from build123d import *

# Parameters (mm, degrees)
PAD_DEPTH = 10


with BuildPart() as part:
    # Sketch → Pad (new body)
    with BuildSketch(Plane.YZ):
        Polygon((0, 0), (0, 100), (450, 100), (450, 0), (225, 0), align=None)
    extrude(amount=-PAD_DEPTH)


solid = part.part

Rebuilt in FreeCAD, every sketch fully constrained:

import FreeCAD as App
import Part
import Sketcher
Q = App.Units.Quantity

doc = App.newDocument("Part")
params = doc.addObject("Spreadsheet::Sheet", "Params")
for row, (alias, value) in enumerate([
    ("sketch1_width", "450 mm"),
    ("sketch1_height", "100 mm"),
    ("pad1_length", "10 mm"),
], start=1):
    params.set(f"A{row}", alias)
    params.set(f"B{row}", "=" + value)
    params.setAlias(f"B{row}", alias)

body = doc.addObject("PartDesign::Body", "Body")

# Sketch on YZ plane
sketch1 = body.newObject("Sketcher::SketchObject", "Sketch")
sketch1.AttachmentSupport = (doc.getObject("YZ_Plane"), [""])
sketch1.MapMode = "FlatFace"
sketch1.addGeometry([
    Part.LineSegment(App.Vector(0, 100, 0), App.Vector(0, 0, 0)),
    Part.LineSegment(App.Vector(0, 0, 0), App.Vector(450, 0, 0)),
    Part.LineSegment(App.Vector(450, 0, 0), App.Vector(450, 100, 0)),
    Part.LineSegment(App.Vector(450, 100, 0), App.Vector(0, 100, 0)),
], False)
sketch1.addConstraint([
    Sketcher.Constraint("Coincident", 0, 2, 1, 1),
    Sketcher.Constraint("Coincident", 1, 2, 2, 1),
    Sketcher.Constraint("Coincident", 2, 2, 3, 1),
    Sketcher.Constraint("Coincident", 3, 2, 0, 1),
    Sketcher.Constraint("Vertical", 0),
    Sketcher.Constraint("Horizontal", 1),
    Sketcher.Constraint("Vertical", 2),
    Sketcher.Constraint("Horizontal", 3),
    Sketcher.Constraint("Coincident", 0, 2, -1, 1),
    Sketcher.Constraint("DistanceX", 1, 1, 1, 2, Q("450 mm")),
    Sketcher.Constraint("DistanceY", 0, 2, 0, 1, Q("100 mm")),
])
sketch1.setExpression("Constraints[9]", "Params.sketch1_width")
sketch1.setExpression("Constraints[10]", "Params.sketch1_height")
pad1 = body.newObject("PartDesign::Pad", "Pad")
pad1.Profile = sketch1
pad1.setExpression("Length", "Params.pad1_length")
pad1.Reversed = True

doc.recompute()
